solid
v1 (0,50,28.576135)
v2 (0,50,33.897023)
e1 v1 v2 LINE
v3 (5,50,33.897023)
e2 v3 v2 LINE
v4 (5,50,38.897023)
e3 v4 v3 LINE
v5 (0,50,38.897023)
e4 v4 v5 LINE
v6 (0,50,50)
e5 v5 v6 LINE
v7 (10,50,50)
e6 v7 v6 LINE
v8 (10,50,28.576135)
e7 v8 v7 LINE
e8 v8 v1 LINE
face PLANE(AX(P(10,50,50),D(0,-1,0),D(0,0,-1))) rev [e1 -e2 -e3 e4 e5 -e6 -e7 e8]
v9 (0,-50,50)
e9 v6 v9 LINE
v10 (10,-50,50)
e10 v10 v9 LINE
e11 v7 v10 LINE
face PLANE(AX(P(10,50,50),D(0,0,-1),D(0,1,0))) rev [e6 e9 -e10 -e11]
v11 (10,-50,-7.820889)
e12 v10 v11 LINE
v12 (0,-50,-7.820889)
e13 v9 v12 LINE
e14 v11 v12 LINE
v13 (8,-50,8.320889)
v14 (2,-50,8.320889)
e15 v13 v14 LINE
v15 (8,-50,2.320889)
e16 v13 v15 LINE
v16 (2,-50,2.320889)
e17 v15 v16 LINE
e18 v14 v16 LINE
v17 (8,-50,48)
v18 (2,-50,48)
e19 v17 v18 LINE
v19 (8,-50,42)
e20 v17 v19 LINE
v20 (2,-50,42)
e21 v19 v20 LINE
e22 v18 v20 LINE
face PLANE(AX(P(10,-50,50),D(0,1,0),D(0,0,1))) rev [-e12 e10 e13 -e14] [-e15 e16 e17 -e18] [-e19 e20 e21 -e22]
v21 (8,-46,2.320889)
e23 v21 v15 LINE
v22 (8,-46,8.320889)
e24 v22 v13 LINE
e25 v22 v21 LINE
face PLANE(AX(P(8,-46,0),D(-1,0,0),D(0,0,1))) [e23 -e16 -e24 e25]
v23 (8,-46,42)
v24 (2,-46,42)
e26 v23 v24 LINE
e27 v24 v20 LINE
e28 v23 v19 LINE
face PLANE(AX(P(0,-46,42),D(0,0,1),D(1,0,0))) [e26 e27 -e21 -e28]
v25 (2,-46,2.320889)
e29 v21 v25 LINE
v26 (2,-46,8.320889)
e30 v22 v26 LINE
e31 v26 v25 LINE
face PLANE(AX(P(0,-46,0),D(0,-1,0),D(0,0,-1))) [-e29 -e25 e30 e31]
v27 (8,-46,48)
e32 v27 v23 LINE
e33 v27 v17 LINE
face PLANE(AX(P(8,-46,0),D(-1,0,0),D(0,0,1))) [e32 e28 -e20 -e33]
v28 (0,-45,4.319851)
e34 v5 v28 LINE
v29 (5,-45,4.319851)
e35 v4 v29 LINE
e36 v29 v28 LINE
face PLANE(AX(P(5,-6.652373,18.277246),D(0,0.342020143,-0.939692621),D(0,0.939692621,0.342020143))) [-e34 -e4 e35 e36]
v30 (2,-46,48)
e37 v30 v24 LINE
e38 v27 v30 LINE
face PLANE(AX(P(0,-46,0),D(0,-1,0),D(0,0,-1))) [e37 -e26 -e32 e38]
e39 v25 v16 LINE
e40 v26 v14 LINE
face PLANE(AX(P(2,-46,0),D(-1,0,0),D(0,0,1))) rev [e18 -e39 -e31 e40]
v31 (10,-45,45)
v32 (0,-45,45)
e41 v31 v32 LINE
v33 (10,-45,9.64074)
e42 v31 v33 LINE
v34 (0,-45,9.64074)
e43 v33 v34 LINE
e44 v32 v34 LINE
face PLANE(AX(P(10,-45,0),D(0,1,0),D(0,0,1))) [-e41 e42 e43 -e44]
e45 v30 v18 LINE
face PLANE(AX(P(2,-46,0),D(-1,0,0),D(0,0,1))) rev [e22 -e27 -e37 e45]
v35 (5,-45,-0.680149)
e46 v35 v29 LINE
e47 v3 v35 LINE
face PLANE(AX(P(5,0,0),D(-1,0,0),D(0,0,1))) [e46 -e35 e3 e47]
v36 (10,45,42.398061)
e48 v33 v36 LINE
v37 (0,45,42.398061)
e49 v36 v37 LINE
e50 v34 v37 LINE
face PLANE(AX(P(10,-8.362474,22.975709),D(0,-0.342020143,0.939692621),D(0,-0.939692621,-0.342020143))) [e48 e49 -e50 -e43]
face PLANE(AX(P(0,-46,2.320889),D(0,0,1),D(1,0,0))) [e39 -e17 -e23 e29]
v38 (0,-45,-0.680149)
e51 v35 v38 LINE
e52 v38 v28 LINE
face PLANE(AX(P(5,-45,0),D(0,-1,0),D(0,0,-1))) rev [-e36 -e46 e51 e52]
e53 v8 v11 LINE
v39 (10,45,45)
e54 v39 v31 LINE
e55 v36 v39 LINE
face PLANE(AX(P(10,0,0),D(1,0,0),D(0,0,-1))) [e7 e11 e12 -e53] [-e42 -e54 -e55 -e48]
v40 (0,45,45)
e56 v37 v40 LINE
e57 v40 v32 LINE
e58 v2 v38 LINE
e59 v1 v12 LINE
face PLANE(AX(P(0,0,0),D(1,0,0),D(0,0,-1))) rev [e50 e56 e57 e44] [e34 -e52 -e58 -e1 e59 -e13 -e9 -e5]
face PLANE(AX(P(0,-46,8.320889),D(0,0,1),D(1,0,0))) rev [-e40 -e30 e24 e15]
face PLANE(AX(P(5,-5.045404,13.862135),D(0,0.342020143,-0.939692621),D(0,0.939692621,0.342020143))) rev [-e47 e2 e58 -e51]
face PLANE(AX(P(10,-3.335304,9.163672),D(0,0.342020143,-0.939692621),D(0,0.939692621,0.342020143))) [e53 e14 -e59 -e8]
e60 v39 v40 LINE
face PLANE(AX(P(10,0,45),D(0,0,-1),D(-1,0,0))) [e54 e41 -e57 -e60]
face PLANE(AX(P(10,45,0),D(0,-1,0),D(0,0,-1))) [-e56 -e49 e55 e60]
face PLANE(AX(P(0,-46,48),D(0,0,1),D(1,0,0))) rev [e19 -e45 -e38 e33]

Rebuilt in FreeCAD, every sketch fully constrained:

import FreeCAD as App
import Part
import Sketcher
from FreeCAD import Vector
Q = App.Units.Quantity


def add_polygon(sketch, points):
    """Adds a closed chain of lines whose ends are joined by coincident constraints."""
    first, n = sketch.GeometryCount, len(points)
    for a, b in zip(points, points[1:] + points[:1]):
        sketch.addGeometry(Part.LineSegment(App.Vector(*a, 0), App.Vector(*b, 0)), False)
    for i in range(n):
        sketch.addConstraint(Sketcher.Constraint("Coincident", first + i, 2, first + (i + 1) % n, 1))

doc = App.newDocument("Part")
body = doc.addObject("PartDesign::Body", "Body")

# Sketch on YZ plane
sketch1 = body.newObject("Sketcher::SketchObject", "Sketch")
sketch1.AttachmentSupport = (doc.getObject("YZ_Plane"), [""])
sketch1.MapMode = "FlatFace"
add_polygon(sketch1, [(50, 50), (-50, 50), (-50, -50), (50, -50)])  # lines 0-3
sketch1.addConstraint(Sketcher.Constraint("Horizontal", 0))
sketch1.addConstraint(Sketcher.Constraint("Vertical", 1))
sketch1.addConstraint(Sketcher.Constraint("Horizontal", 2))
sketch1.addConstraint(Sketcher.Constraint("Vertical", 3))
sketch1.addConstraint(Sketcher.Constraint("Symmetric", 0, 2, 2, 2, -1, 1))
sketch1.addConstraint(Sketcher.Constraint("Equal", 2, 1))
sketch1.addConstraint(Sketcher.Constraint("DistanceX", 0, 2, 0, 1, 100.0))
pad1 = body.newObject("PartDesign::Pad", "Pad")
pad1.Profile = sketch1
pad1.Length = 10

# Sketch on YZ plane
sketch2 = body.newObject("Sketcher::SketchObject", "Sketch001")
sketch2.AttachmentSupport = (doc.getObject("YZ_Plane"), [""])
sketch2.MapMode = "FlatFace"
add_polygon(sketch2, [(45, 45), (45, 42.398061), (-45, 9.64074), (-45, 45)])  # lines 0-3
sketch2.addConstraint(Sketcher.Constraint("Vertical", 0))
sketch2.addConstraint(Sketcher.Constraint("Vertical", 2))
sketch2.addConstraint(Sketcher.Constraint("Horizontal", 3))
sketch2.addConstraint(Sketcher.Constraint("DistanceX", 3, 1, 3, 2, 90.0))
sketch2.addConstraint(Sketcher.Constraint("Angle", 1, Q("-160 deg")))
sketch2.addConstraint(Sketcher.Constraint("DistanceX", -1, 1, 0, 2, 45.0))
sketch2.addConstraint(Sketcher.Constraint("DistanceY", -1, 1, 2, 2, 45.0))
sketch2.addConstraint(Sketcher.Constraint("DistanceY", 0, 2, 0, 1, 2.601939))
pocket1 = body.newObject("PartDesign::Pocket", "Pocket")
pocket1.Profile = sketch2
pocket1.Length = 10
pocket1.Reversed = True

# Sketch on YZ plane
sketch3 = body.newObject("Sketcher::SketchObject", "Sketch002")
sketch3.AttachmentSupport = (doc.getObject("YZ_Plane"), [""])
sketch3.MapMode = "FlatFace"
add_polygon(sketch3, [(50, 33.897023), (-45, -0.680149), (-45, 4.319851), (50, 38.897023)])  # lines 0-3
sketch3.addConstraint(Sketcher.Constraint("Vertical", 1))
sketch3.addConstraint(Sketcher.Constraint("Vertical", 3))
sketch3.addConstraint(Sketcher.Constraint("Parallel", 0, 2))
sketch3.addConstraint(Sketcher.Constraint("DistanceY", 1, 1, 1, 2, 5.0))
sketch3.addConstraint(Sketcher.Constraint("Angle", 0, Q("-160 deg")))
sketch3.addConstraint(Sketcher.Constraint("DistanceX", 0, 2, -1, 1, 45.0))
sketch3.addConstraint(Sketcher.Constraint("DistanceX", -1, 1, 2, 2, 50.0))
sketch3.addConstraint(Sketcher.Constraint("DistanceY", 0, 2, -1, 1, 0.680149))
pocket2 = body.newObject("PartDesign::Pocket", "Pocket001")
pocket2.Profile = sketch3
pocket2.Length = 5
pocket2.Reversed = True

# Sketch on XZ plane
sketch4 = body.newObject("Sketcher::SketchObject", "Sketch003")
sketch4.AttachmentSupport = (doc.getObject("XZ_Plane"), [""])
sketch4.MapMode = "FlatFace"
sketch4.AttachmentOffset = App.Placement(Vector(0, 0, 50), App.Rotation())
add_polygon(sketch4, [(2, -42), (2, -48), (8, -48), (8, -42)])  # lines 0-3
add_polygon(sketch4, [(2, 8.320889), (2, 2.320889), (8, 2.320889), (8, 8.320889)])  # lines 4-7
add_polygon(sketch4, [(8, 42), (8, 48), (2, 48), (2, 42)])  # lines 8-11
sketch4.addConstraint(Sketcher.Constraint("Vertical", 0))
sketch4.addConstraint(Sketcher.Constraint("Horizontal", 1))
sketch4.addConstraint(Sketcher.Constraint("Vertical", 2))
sketch4.addConstraint(Sketcher.Constraint("Horizontal", 3))
sketch4.addConstraint(Sketcher.Constraint("Vertical", 4))
sketch4.addConstraint(Sketcher.Constraint("Horizontal", 5))
sketch4.addConstraint(Sketcher.Constraint("Vertical", 6))
sketch4.addConstraint(Sketcher.Constraint("Horizontal", 7))
sketch4.addConstraint(Sketcher.Constraint("Vertical", 8))
sketch4.addConstraint(Sketcher.Constraint("Horizontal", 9))
sketch4.addConstraint(Sketcher.Constraint("Vertical", 10))
sketch4.addConstraint(Sketcher.Constraint("Horizontal", 11))
sketch4.addConstraint(Sketcher.Constraint("Symmetric", 1, 2, 8, 2, -1))
sketch4.addConstraint(Sketcher.Constraint("Symmetric", 3, 2, 10, 2, -1))
sketch4.addConstraint(Sketcher.Constraint("Vertical", 3, 2, 4, 2))
sketch4.addConstraint(Sketcher.Constraint("Vertical", 2, 2, 5, 2))
sketch4.addConstraint(Sketcher.Constraint("Equal", 11, 0))
sketch4.addConstraint(Sketcher.Constraint("Equal", 2, 4))
sketch4.addConstraint(Sketcher.Constraint("DistanceX", 1, 1, 1, 2, 6.0))
sketch4.addConstraint(Sketcher.Constraint("DistanceX", -1, 1, 0, 2, 2.0))
sketch4.addConstraint(Sketcher.Constraint("DistanceY", 0, 2, -1, 1, 48.0))
sketch4.addConstraint(Sketcher.Constraint("DistanceY", -1, 1, 4, 2, 2.320889))
pocket3 = body.newObject("PartDesign::Pocket", "Pocket002")
pocket3.Profile = sketch4
pocket3.Length = 4

# Sketch on YZ plane
sketch5 = body.newObject("Sketcher::SketchObject", "Sketch004")
sketch5.AttachmentSupport = (doc.getObject("YZ_Plane"), [""])
sketch5.MapMode = "FlatFace"
add_polygon(sketch5, [(50, 28.576135), (50, -50), (-50, -50), (-50, -7.820889), (-45, -6.001038), (45, 26.756283)])  # lines 0-5
sketch5.addConstraint(Sketcher.Constraint("Vertical", 0))
sketch5.addConstraint(Sketcher.Constraint("Horizontal", 1))
sketch5.addConstraint(Sketcher.Constraint("Vertical", 2))
sketch5.addConstraint(Sketcher.Constraint("Parallel", 3, 4))
sketch5.addConstraint(Sketcher.Constraint("Parallel", 4, 5))
sketch5.addConstraint(Sketcher.Constraint("Equal", 3, 5))
sketch5.addConstraint(Sketcher.Constraint("DistanceX", 1, 2, 1, 1, 100.0))
sketch5.addConstraint(Sketcher.Constraint("Angle", 3, Q("20 deg")))
sketch5.addConstraint(Sketcher.Constraint("DistanceX", -1, 1, 0, 2, 50.0))
sketch5.addConstraint(Sketcher.Constraint("DistanceY", 0, 2, -1, 1, 50.0))
sketch5.addConstraint(Sketcher.Constraint("DistanceX", 3, 2, -1, 1, 45.0))
sketch5.addConstraint(Sketcher.Constraint("DistanceY", 2, 1, 2, 2, 42.179111))
pocket4 = body.newObject("PartDesign::Pocket", "Pocket003")
pocket4.Profile = sketch5
pocket4.Length = 10
pocket4.Reversed = True

doc.recompute()
